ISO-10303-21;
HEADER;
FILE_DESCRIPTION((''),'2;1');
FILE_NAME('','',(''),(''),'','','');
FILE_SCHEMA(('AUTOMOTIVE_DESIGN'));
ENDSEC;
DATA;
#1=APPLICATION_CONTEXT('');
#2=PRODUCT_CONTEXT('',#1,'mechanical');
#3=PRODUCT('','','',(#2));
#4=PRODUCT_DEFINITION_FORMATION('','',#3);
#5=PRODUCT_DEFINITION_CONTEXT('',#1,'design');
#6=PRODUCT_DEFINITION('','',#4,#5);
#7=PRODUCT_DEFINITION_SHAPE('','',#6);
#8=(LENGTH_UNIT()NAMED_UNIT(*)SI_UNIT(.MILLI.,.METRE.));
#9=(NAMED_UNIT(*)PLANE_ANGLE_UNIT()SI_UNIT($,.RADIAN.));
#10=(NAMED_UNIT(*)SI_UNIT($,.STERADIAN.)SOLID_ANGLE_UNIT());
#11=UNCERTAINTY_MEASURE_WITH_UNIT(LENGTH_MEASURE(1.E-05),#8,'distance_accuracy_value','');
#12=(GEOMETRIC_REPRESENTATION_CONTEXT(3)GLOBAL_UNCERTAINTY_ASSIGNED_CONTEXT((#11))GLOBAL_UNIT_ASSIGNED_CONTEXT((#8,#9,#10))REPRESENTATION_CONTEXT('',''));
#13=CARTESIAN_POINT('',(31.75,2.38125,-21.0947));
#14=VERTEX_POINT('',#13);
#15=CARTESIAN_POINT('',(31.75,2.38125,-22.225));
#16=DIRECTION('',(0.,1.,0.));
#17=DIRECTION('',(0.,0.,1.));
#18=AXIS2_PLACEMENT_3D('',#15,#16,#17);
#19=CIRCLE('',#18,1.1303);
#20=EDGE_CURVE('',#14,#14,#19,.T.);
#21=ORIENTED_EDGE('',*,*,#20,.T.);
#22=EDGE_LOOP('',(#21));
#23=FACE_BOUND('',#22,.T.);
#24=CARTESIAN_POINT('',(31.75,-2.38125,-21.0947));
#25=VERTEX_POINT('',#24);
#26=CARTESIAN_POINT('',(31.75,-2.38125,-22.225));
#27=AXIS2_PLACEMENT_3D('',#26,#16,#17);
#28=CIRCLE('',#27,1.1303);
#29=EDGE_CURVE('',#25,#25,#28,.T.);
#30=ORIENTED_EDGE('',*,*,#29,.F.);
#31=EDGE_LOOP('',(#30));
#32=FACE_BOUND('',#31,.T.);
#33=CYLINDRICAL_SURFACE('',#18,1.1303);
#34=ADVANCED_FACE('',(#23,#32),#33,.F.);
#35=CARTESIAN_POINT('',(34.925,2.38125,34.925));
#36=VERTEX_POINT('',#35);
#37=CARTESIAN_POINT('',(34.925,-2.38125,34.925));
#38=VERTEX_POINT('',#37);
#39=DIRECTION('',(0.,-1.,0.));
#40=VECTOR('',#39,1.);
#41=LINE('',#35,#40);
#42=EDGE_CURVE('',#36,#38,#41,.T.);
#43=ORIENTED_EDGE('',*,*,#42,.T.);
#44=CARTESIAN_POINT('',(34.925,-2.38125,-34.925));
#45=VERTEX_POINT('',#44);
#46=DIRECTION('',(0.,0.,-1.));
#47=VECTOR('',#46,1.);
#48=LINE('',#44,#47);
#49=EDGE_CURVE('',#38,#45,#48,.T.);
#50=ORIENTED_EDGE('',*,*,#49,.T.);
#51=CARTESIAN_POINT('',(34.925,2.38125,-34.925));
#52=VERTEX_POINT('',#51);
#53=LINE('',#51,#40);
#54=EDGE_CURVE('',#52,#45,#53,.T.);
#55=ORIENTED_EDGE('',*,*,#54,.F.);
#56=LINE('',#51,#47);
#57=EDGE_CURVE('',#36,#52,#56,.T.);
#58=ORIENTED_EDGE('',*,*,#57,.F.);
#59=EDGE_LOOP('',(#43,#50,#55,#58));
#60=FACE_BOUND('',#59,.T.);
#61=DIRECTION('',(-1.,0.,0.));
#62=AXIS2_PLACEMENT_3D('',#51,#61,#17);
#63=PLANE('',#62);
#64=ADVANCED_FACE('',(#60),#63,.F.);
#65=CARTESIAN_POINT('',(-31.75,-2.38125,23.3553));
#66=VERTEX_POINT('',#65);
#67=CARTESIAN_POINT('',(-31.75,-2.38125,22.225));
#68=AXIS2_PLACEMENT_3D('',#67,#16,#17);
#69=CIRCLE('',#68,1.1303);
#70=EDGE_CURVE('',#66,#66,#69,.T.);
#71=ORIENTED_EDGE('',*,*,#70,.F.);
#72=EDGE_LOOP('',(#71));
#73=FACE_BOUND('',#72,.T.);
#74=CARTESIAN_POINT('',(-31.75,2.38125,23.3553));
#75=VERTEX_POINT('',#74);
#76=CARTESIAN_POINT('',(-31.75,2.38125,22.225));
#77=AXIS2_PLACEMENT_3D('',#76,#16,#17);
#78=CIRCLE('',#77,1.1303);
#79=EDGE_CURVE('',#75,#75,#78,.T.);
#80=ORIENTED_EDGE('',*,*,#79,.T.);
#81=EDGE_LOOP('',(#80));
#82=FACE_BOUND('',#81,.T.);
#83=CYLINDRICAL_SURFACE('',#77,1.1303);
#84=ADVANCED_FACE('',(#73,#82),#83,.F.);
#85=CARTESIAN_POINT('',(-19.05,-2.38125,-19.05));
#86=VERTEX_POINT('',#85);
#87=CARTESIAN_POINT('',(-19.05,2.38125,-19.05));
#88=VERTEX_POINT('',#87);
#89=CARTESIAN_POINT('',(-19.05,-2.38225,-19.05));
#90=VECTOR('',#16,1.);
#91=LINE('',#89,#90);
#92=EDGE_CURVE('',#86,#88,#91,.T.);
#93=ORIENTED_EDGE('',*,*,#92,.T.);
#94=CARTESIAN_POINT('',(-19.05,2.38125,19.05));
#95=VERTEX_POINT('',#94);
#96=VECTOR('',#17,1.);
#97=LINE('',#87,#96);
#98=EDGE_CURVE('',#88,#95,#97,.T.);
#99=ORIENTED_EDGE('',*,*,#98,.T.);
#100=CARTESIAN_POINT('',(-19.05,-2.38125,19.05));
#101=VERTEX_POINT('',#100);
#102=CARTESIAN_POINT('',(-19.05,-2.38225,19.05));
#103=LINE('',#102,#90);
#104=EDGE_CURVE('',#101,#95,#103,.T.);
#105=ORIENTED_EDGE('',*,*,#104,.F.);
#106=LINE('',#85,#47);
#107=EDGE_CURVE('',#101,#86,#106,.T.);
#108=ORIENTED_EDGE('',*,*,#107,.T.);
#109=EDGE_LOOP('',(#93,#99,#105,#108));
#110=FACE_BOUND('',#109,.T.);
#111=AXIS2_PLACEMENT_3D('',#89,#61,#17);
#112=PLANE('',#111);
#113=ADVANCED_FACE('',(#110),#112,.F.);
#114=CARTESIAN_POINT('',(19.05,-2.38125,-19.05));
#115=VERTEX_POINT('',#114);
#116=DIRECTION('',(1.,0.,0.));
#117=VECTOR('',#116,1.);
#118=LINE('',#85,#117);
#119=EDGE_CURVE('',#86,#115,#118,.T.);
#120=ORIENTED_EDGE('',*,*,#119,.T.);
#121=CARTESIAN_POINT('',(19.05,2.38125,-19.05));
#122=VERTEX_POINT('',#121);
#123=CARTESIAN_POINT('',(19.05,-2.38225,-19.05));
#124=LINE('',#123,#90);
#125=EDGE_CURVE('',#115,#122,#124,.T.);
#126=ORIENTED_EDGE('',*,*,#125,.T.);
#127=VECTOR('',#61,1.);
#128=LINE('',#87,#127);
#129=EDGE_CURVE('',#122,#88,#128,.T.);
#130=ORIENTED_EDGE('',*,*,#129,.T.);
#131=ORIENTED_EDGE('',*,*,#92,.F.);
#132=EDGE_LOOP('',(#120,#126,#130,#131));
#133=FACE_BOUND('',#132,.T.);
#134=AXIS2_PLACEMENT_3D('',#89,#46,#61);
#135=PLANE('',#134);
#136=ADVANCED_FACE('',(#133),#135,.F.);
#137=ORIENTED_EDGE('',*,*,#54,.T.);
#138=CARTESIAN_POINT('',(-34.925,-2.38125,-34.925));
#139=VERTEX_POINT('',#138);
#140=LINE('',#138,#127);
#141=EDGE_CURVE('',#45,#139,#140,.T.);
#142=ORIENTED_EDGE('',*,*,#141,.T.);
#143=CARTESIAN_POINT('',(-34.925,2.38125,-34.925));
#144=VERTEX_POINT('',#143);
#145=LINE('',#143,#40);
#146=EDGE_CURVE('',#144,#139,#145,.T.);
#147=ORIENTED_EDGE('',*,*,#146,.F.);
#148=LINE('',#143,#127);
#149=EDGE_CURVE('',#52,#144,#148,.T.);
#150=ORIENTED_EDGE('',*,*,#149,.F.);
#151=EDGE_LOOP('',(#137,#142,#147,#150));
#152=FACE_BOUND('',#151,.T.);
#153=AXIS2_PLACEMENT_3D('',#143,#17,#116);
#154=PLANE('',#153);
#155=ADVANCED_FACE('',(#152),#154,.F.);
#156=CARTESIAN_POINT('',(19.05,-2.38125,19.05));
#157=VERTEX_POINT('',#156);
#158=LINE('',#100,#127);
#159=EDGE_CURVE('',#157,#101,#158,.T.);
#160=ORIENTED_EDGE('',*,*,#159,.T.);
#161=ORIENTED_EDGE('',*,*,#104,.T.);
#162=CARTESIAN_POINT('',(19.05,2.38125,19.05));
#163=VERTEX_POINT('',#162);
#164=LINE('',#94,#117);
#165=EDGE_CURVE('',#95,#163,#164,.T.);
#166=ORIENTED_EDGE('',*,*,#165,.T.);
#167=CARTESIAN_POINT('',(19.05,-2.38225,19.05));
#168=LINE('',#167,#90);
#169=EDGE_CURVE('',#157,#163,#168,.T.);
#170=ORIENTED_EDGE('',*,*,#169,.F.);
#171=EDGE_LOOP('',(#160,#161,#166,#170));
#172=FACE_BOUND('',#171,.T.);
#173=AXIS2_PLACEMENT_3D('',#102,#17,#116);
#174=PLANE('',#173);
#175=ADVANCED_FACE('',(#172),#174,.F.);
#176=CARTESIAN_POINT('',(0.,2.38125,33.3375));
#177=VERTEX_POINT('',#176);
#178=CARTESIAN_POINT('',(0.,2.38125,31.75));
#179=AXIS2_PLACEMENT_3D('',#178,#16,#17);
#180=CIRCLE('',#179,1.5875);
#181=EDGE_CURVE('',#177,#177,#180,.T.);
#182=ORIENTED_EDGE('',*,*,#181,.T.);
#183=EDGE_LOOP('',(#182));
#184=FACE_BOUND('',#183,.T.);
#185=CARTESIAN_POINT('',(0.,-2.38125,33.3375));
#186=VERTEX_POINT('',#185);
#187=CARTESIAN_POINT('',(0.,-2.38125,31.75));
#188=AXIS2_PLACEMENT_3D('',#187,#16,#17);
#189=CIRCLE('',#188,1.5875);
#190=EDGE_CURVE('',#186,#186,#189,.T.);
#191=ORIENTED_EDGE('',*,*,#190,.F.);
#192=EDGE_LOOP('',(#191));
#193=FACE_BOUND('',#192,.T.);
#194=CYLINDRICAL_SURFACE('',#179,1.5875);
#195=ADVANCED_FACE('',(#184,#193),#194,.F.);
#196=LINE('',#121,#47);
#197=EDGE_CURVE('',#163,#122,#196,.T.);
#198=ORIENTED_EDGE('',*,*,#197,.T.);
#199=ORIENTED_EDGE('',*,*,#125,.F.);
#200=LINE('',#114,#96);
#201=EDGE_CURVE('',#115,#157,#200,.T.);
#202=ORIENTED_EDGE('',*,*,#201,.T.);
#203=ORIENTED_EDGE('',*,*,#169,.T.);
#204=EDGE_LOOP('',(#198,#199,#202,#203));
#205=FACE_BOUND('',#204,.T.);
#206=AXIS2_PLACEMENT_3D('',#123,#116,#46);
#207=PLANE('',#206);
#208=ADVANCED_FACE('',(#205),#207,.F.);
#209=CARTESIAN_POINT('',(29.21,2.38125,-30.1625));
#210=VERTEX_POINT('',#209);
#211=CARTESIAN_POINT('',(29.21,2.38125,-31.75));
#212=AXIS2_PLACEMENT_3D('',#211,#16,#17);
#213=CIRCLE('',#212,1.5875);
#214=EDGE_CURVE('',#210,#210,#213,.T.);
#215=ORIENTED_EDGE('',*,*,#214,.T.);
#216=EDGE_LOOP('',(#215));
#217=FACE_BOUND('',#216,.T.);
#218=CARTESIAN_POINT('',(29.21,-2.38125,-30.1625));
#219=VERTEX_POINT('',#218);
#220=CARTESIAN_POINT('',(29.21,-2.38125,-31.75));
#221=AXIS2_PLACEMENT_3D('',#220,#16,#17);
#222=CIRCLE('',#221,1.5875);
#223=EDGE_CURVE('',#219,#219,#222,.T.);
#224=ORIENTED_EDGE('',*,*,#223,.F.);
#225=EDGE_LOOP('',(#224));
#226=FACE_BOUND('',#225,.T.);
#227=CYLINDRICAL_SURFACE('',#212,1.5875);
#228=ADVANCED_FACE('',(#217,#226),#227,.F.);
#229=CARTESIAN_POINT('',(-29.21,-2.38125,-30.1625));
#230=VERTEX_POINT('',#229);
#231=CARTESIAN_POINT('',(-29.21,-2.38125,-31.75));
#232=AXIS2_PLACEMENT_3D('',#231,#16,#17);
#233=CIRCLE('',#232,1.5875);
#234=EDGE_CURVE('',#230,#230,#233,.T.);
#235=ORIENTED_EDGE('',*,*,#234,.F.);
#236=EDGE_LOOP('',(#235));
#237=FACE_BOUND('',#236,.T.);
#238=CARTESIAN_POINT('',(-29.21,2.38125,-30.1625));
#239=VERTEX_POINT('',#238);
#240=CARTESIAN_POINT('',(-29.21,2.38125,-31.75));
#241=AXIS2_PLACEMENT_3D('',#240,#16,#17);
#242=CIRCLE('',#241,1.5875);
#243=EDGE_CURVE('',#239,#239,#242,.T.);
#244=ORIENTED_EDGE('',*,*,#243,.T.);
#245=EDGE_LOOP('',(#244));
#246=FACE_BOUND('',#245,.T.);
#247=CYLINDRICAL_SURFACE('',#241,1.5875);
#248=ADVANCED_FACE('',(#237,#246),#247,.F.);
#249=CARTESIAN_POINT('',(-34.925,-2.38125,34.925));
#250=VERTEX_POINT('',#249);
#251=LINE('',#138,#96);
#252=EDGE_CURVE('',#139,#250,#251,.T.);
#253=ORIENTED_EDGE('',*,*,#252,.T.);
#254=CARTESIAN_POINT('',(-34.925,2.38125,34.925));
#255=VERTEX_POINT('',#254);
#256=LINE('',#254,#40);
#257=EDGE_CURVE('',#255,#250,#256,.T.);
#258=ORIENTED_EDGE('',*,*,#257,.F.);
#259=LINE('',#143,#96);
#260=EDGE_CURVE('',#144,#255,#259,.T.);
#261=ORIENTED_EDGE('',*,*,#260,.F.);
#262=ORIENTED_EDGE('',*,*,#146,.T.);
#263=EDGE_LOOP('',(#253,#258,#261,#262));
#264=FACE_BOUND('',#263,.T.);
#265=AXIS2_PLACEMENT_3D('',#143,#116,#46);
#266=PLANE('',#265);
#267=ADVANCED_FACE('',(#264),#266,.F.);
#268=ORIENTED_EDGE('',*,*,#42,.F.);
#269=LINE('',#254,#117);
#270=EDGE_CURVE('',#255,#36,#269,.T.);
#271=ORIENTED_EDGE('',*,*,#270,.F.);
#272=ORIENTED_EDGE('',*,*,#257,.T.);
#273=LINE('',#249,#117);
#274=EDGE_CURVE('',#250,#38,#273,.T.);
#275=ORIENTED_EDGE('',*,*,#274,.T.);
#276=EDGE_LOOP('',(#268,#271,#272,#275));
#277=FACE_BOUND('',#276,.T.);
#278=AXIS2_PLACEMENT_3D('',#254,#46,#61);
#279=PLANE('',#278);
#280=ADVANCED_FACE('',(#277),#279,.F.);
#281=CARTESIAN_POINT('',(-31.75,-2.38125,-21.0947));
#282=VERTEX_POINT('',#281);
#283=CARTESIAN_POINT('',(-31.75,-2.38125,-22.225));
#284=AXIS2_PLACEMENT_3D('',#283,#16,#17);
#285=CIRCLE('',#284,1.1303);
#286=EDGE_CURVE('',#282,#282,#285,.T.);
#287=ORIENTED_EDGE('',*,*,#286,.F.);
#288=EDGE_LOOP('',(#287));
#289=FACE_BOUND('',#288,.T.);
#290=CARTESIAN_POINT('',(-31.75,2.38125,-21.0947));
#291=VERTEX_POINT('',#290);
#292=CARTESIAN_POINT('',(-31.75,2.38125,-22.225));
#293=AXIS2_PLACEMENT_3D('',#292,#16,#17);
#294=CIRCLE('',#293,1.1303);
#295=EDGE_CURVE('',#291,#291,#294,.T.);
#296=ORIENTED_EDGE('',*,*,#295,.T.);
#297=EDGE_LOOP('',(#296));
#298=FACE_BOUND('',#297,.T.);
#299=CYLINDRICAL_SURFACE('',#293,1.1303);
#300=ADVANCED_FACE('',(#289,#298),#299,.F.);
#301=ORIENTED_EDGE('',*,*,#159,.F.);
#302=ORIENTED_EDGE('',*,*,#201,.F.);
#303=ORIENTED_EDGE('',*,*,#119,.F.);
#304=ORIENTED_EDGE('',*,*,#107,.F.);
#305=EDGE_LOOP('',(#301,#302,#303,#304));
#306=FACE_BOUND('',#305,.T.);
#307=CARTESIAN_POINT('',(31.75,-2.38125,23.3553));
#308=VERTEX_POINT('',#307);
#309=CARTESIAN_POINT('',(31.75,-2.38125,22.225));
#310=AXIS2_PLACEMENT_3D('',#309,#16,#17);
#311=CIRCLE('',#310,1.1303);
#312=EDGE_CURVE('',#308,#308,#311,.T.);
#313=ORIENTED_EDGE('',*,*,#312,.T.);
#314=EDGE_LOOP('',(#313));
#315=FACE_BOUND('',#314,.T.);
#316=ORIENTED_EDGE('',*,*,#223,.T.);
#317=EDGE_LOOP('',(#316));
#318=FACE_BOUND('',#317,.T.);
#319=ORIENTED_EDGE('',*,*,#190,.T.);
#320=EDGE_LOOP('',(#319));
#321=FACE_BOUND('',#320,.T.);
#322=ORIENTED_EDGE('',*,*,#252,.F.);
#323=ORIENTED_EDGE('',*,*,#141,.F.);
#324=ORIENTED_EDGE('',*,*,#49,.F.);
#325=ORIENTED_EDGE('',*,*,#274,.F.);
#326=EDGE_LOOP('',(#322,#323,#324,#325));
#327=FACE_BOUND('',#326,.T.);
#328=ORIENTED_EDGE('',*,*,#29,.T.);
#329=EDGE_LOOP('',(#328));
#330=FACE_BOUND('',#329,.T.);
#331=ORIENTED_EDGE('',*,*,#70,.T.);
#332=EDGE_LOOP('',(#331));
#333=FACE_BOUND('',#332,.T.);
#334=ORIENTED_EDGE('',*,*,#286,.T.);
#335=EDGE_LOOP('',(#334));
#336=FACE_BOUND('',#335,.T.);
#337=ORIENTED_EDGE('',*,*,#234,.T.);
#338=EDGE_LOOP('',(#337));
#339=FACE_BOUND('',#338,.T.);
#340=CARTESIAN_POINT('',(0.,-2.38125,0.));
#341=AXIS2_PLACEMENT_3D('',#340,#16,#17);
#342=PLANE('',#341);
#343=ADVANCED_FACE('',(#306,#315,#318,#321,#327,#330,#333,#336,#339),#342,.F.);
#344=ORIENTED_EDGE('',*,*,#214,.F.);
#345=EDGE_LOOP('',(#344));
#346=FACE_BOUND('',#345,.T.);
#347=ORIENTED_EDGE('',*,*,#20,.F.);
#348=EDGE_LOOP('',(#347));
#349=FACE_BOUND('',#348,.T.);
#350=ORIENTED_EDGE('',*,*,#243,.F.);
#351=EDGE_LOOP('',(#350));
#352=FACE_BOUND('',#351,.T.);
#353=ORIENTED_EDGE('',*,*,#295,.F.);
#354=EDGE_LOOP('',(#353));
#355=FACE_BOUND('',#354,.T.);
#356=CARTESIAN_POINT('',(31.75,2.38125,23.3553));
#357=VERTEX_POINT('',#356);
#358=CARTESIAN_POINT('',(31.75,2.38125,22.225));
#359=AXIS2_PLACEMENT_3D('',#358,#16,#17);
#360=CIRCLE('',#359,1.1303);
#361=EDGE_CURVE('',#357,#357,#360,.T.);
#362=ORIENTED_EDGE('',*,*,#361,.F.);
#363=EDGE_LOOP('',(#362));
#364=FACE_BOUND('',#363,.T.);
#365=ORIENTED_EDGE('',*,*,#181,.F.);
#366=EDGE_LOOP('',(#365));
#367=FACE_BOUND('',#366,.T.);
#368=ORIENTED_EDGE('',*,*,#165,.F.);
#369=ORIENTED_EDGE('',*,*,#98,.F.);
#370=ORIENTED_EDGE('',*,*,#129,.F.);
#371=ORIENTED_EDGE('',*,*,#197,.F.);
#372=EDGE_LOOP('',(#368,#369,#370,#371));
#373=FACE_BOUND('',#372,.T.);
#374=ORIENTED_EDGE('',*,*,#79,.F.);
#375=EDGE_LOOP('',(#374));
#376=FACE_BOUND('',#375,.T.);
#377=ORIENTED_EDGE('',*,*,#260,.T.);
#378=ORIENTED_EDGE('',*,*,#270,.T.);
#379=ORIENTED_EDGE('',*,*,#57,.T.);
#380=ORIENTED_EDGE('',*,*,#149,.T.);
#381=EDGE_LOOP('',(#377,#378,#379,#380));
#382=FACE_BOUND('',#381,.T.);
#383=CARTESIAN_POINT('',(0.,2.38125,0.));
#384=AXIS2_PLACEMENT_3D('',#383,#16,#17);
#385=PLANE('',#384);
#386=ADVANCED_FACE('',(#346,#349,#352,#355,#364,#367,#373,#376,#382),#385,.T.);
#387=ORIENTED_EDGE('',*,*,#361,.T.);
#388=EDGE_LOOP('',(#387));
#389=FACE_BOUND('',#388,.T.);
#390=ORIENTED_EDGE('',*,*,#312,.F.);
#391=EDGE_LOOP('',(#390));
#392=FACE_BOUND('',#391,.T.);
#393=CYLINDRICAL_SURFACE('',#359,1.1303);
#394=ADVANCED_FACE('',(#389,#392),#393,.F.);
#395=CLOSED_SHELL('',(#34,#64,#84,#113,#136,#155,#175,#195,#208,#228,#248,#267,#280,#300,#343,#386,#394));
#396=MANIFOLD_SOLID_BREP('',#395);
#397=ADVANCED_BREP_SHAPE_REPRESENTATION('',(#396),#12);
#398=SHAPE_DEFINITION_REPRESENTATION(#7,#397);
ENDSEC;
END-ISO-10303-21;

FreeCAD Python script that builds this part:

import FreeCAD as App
import Part
import Sketcher

V = App.Vector
Q = App.Units.Quantity

doc = App.newDocument("Part")
params = doc.addObject("Spreadsheet::Sheet", "Params")
for row, (alias, value) in enumerate([
    ("sketch1_width", "2.75 in"),
    ("pad1_length", "0.1875 in"),
    ("sketch2_width", "1.5 in"),
    ("sketch3_diameter", "0.089 in"),
    ("hole_diameter", "0.089 in"),
    ("sketch4_diameter", "0.125 in"),
    ("hole2_diameter", "0.125 in"),
], start=1):
    params.set(f"A{row}", alias)
    params.set(f"B{row}", "=" + value)
    params.setAlias(f"B{row}", alias)

body = doc.addObject("PartDesign::Body", "Body")

sketch1 = doc.addObject("Sketcher::SketchObject", "Sketch")
body.addObject(sketch1)
sketch1.AttachmentSupport = (doc.XZ_Plane, [""])
sketch1.MapMode = "FlatFace"
sketch1.addGeometry([
    Part.LineSegment(V(-35, -35, 0), V(-35, 35, 0)),
    Part.LineSegment(V(-35, 35, 0), V(35, 35, 0)),
    Part.LineSegment(V(35, 35, 0), V(35, -35, 0)),
    Part.LineSegment(V(35, -35, 0), V(-35, -35, 0)),
], False)
sketch1.addConstraint([
    Sketcher.Constraint("Coincident", 0, 2, 1, 1),
    Sketcher.Constraint("Coincident", 1, 2, 2, 1),
    Sketcher.Constraint("Coincident", 2, 2, 3, 1),
    Sketcher.Constraint("Coincident", 3, 2, 0, 1),
    Sketcher.Constraint("Vertical", 0),
    Sketcher.Constraint("Horizontal", 1),
    Sketcher.Constraint("Vertical", 2),
    Sketcher.Constraint("Horizontal", 3),
    Sketcher.Constraint("Symmetric", 0, 2, 2, 2, -1, 1),
    Sketcher.Constraint("Equal", 3, 0),
    Sketcher.Constraint("DistanceX", 1, 1, 1, 2, Q("2.75 in")),
])
sketch1.setExpression("Constraints[10]", "Params.sketch1_width")
pad1 = doc.addObject("PartDesign::Pad", "Pad")
body.addObject(pad1)
pad1.Profile = sketch1
pad1.setExpression("Length", "Params.pad1_length")
pad1.Midplane = True

sketch2 = doc.addObject("Sketcher::SketchObject", "Sketch001")
body.addObject(sketch2)
sketch2.AttachmentSupport = (doc.XZ_Plane, [""])
sketch2.MapMode = "FlatFace"
sketch2.AttachmentOffset = App.Placement(V(0, 0, -0.09375 * 25.4), App.Rotation())
sketch2.addGeometry([
    Part.LineSegment(V(-19, -19, 0), V(-19, 19, 0)),
    Part.LineSegment(V(-19, 19, 0), V(19, 19, 0)),
    Part.LineSegment(V(19, 19, 0), V(19, -19, 0)),
    Part.LineSegment(V(19, -19, 0), V(-19, -19, 0)),
], False)
sketch2.addConstraint([
    Sketcher.Constraint("Coincident", 0, 2, 1, 1),
    Sketcher.Constraint("Coincident", 1, 2, 2, 1),
    Sketcher.Constraint("Coincident", 2, 2, 3, 1),
    Sketcher.Constraint("Coincident", 3, 2, 0, 1),
    Sketcher.Constraint("Vertical", 0),
    Sketcher.Constraint("Horizontal", 1),
    Sketcher.Constraint("Vertical", 2),
    Sketcher.Constraint("Horizontal", 3),
    Sketcher.Constraint("Symmetric", 0, 2, 2, 2, -1, 1),
    Sketcher.Constraint("Equal", 3, 0),
    Sketcher.Constraint("DistanceX", 1, 1, 1, 2, Q("1.5 in")),
])
sketch2.setExpression("Constraints[10]", "Params.sketch2_width")
pocket1 = doc.addObject("PartDesign::Pocket", "Pocket")
body.addObject(pocket1)
pocket1.Profile = sketch2
pocket1.Type = "UpToFirst"
pocket1.Reversed = True

sketch3 = doc.addObject("Sketcher::SketchObject", "Sketch002")
body.addObject(sketch3)
sketch3.AttachmentSupport = (doc.XZ_Plane, [""])
sketch3.MapMode = "FlatFace"
sketch3.AttachmentOffset = App.Placement(V(0, 0, -0.09375 * 25.4), App.Rotation())
sketch3.addGeometry([
    Part.Circle(V(-31.8, -22.2, 0), V(0, 0, 1), 1.1),
    Part.Circle(V(31.8, -22.2, 0), V(0, 0, 1), 1.1),
], False)
sketch3.addConstraint([
    Sketcher.Constraint("Equal", 0, 1),
    Sketcher.Constraint("Symmetric", 0, 3, 1, 3, -2),
    Sketcher.Constraint("Diameter", 0, Q("0.089 in")),
    Sketcher.Constraint("DistanceX", 0, 3, 1, 3, Q("2.5 in")),
    Sketcher.Constraint("DistanceY", 0, 3, -1, 1, Q("0.875 in")),
])
sketch3.setExpression("Constraints[2]", "Params.sketch3_diameter")
doc.recompute()
hole = doc.addObject("PartDesign::Hole", "Hole")
body.addObject(hole)
hole.Profile = sketch3
hole.ThreadType = "None"
hole.setExpression("Diameter", "Params.hole_diameter")
hole.DepthType = "ThroughAll"
hole.Reversed = True

sketch4 = doc.addObject("Sketcher::SketchObject", "Sketch003")
body.addObject(sketch4)
sketch4.AttachmentSupport = (doc.XZ_Plane, [""])
sketch4.MapMode = "FlatFace"
sketch4.AttachmentOffset = App.Placement(V(0, 0, -0.09375 * 25.4), App.Rotation())
sketch4.addGeometry([
    Part.Circle(V(-29.2, -31.8, 0), V(0, 0, 1), 1.6),
    Part.Circle(V(29.2, -31.8, 0), V(0, 0, 1), 1.6),
    Part.Circle(V(0, 31.8, 0), V(0, 0, 1), 1.6),
], False)
sketch4.addConstraint([
    Sketcher.Constraint("Equal", 0, 1),
    Sketcher.Constraint("Equal", 1, 2),
    Sketcher.Constraint("Symmetric", 0, 3, 1, 3, -2),
    Sketcher.Constraint("PointOnObject", 2, 3, -2),
    Sketcher.Constraint("Diameter", 0, Q("0.125 in")),
    Sketcher.Constraint("DistanceX", 0, 3, 1, 3, Q("2.3 in")),
    Sketcher.Constraint("DistanceY", 0, 3, 2, 3, Q("2.5 in")),
    Sketcher.Constraint("DistanceY", 0, 3, -1, 1, Q("1.25 in")),
])
sketch4.setExpression("Constraints[4]", "Params.sketch4_diameter")
doc.recompute()
hole2 = doc.addObject("PartDesign::Hole", "Hole001")
body.addObject(hole2)
hole2.Profile = sketch4
hole2.ThreadType = "None"
hole2.setExpression("Diameter", "Params.hole2_diameter")
hole2.DepthType = "ThroughAll"
hole2.Reversed = True
doc.recompute()

mirrored = doc.addObject("PartDesign::Mirrored", "Mirrored")
body.addObject(mirrored)
mirrored.Originals = [hole]
mirrored.MirrorPlane = (doc.XY_Plane, [""])
body.Tip = mirrored

doc.recompute()
